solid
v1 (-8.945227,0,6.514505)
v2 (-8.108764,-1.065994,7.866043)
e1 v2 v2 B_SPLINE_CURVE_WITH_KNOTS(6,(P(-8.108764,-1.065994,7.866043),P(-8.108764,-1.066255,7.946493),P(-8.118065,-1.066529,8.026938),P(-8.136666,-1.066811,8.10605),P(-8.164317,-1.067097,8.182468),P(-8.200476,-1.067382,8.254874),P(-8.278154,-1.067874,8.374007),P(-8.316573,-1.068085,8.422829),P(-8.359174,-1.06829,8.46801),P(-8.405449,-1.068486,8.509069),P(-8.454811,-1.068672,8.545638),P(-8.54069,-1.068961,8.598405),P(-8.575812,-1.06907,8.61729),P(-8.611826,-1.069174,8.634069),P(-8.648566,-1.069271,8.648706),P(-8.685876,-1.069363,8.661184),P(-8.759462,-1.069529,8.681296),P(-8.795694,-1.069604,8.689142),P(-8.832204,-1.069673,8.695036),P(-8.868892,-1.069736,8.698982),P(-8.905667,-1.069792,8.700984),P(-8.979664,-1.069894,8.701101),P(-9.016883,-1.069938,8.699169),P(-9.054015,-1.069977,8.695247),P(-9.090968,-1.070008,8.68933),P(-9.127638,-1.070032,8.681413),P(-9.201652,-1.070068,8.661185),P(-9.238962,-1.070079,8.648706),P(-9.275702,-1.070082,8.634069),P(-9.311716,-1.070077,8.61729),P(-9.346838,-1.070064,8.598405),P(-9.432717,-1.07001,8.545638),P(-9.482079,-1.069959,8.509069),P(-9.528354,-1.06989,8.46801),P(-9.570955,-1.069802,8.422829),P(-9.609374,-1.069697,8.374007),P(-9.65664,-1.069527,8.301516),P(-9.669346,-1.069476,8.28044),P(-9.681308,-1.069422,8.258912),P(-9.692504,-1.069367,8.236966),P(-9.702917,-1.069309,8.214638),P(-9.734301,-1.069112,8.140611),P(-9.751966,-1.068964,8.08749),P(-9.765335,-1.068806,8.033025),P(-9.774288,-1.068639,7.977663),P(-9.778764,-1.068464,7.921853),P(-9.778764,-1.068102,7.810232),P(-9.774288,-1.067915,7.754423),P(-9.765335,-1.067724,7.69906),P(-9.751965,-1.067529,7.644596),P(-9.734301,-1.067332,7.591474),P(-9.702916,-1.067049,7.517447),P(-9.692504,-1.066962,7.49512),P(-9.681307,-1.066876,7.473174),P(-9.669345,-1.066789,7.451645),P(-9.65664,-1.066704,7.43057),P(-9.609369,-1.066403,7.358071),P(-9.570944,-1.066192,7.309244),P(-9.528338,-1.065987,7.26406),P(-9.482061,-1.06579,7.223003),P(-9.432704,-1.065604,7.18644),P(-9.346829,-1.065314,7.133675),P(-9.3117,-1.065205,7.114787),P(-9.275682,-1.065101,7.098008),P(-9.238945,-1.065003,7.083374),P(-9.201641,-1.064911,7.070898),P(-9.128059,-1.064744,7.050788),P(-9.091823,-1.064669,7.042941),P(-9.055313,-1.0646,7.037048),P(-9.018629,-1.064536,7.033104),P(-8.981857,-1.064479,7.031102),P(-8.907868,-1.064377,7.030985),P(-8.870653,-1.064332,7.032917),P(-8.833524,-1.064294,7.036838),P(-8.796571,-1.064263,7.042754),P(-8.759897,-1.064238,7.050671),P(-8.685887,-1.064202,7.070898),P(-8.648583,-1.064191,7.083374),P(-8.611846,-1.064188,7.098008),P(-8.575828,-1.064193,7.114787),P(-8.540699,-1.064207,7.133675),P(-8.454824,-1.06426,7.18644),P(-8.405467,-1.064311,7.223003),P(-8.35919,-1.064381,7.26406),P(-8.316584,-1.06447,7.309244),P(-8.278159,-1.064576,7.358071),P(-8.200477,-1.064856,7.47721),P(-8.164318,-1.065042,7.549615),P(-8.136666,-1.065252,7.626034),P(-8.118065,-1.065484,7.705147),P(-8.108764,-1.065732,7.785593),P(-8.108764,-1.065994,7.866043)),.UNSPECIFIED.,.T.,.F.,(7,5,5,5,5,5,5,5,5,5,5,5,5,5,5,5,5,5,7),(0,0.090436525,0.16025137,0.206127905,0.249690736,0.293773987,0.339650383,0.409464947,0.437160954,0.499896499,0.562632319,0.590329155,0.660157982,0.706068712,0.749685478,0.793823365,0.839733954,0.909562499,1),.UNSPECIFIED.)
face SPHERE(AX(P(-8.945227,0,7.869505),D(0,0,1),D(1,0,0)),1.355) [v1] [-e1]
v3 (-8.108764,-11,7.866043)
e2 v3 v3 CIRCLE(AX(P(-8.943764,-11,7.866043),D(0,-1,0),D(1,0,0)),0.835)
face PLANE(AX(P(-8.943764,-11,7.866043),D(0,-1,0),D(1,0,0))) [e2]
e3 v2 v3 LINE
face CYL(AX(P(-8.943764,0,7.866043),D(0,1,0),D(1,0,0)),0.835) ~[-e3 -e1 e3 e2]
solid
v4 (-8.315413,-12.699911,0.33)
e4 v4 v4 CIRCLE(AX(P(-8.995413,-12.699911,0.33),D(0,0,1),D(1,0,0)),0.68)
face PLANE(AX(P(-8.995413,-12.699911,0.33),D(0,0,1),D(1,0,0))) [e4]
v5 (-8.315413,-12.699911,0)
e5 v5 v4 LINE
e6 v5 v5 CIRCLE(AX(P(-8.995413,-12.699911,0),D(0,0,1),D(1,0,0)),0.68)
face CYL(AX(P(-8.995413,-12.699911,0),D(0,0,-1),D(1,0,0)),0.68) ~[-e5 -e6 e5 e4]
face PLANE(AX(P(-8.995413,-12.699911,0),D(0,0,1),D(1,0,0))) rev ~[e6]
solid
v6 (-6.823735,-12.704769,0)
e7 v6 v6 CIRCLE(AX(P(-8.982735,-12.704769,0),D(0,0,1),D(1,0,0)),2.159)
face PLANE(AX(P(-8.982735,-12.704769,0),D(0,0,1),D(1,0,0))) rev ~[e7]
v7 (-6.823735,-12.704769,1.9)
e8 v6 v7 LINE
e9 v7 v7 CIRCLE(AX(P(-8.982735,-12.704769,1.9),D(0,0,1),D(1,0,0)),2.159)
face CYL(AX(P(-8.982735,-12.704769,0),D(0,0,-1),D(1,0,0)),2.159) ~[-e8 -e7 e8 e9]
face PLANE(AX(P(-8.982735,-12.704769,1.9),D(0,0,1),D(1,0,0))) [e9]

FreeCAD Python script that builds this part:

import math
import FreeCAD as App
import Part
import Sketcher
Q = App.Units.Quantity

doc = App.newDocument("Part")
body = doc.addObject("PartDesign::Body", "Body")

# Sketch on XZ plane
sketch1 = body.newObject("Sketcher::SketchObject", "Sketch")
sketch1.AttachmentSupport = (doc.getObject("XZ_Plane"), [""])
sketch1.MapMode = "FlatFace"
sketch1.addGeometry(Part.Circle(App.Vector(-8.9, 7.9, 0), App.Vector(0, 0, 1), 0.8), False)
sketch1.addConstraint([
    Sketcher.Constraint("Diameter", 0, Q("1.67 mm")),
    Sketcher.Constraint("DistanceX", 0, 3, -1, 1, Q("8.943764 mm")),
    Sketcher.Constraint("DistanceY", -1, 1, 0, 3, Q("7.866043 mm")),
])
pad1 = body.newObject("PartDesign::Pad", "Pad")
pad1.Profile = sketch1
pad1.Length = 11

# Sketch on XZ plane
sketch2 = body.newObject("Sketcher::SketchObject", "Sketch001")
sketch2.AttachmentSupport = (doc.getObject("XZ_Plane"), [""])
sketch2.MapMode = "FlatFace"
sketch2.addGeometry([
    Part.LineSegment(App.Vector(-8.9, 9.2, 0), App.Vector(-8.9, 6.5, 0)),
    Part.ArcOfCircle(Part.Circle(App.Vector(-8.9, 7.9, 0), App.Vector(0, 0, 1), 1.4), math.radians(-90), math.radians(90)),
], False)
sketch2.addGeometry(Part.LineSegment(App.Vector(-8.9, 6.5, 0), App.Vector(-8.9, 9.2, 0)), True)  # axis
sketch2.addConstraint([
    Sketcher.Constraint("Coincident", 0, 1, 1, 2),
    Sketcher.Constraint("Coincident", 1, 1, 0, 2),
    Sketcher.Constraint("Vertical", 0),
    Sketcher.Constraint("Vertical", 2),
    Sketcher.Constraint("Coincident", 2, 1, 1, 1),
    Sketcher.Constraint("Vertical", 1, 3, 0, 1),
    Sketcher.Constraint("Equal", 0, 2),
    Sketcher.Constraint("Radius", 1, Q("1.355 mm")),
    Sketcher.Constraint("DistanceX", 1, 3, -1, 1, Q("8.945227 mm")),
    Sketcher.Constraint("DistanceY", -1, 1, 1, 3, Q("7.869505 mm")),
])
revolution = body.newObject("PartDesign::Revolution", "Revolution")
revolution.Profile = sketch2
revolution.ReferenceAxis = (sketch2, ["Axis0"])
revolution.Angle = 360
body2 = doc.addObject("PartDesign::Body", "Body001")

# Sketch on XY plane
sketch3 = body2.newObject("Sketcher::SketchObject", "Sketch002")
sketch3.AttachmentSupport = (doc.getObject("XY_Plane001"), [""])
sketch3.MapMode = "FlatFace"
sketch3.addGeometry(Part.Circle(App.Vector(-9, -12.7, 0), App.Vector(0, 0, 1), 2.2), False)
sketch3.addConstraint([
    Sketcher.Constraint("Diameter", 0, Q("4.318 mm")),
    Sketcher.Constraint("DistanceY", 0, 3, -1, 1, Q("12.704769 mm")),
    Sketcher.Constraint("DistanceX", 0, 3, -1, 1, Q("8.982735 mm")),
])
pad2 = body2.newObject("PartDesign::Pad", "Pad001")
pad2.Profile = sketch3
pad2.Length = 1.9
body3 = doc.addObject("PartDesign::Body", "Body002")

# Sketch on XY plane
sketch4 = body3.newObject("Sketcher::SketchObject", "Sketch003")
sketch4.AttachmentSupport = (doc.getObject("XY_Plane002"), [""])
sketch4.MapMode = "FlatFace"
sketch4.addGeometry(Part.Circle(App.Vector(-9, -12.7, 0), App.Vector(0, 0, 1), 0.7), False)
sketch4.addConstraint([
    Sketcher.Constraint("Diameter", 0, Q("1.36 mm")),
    Sketcher.Constraint("DistanceY", 0, 3, -1, 1, Q("12.699911 mm")),
    Sketcher.Constraint("DistanceX", 0, 3, -1, 1, Q("8.995413 mm")),
])
pad3 = body3.newObject("PartDesign::Pad", "Pad002")
pad3.Profile = sketch4
pad3.Length = 0.33

doc.recompute()
